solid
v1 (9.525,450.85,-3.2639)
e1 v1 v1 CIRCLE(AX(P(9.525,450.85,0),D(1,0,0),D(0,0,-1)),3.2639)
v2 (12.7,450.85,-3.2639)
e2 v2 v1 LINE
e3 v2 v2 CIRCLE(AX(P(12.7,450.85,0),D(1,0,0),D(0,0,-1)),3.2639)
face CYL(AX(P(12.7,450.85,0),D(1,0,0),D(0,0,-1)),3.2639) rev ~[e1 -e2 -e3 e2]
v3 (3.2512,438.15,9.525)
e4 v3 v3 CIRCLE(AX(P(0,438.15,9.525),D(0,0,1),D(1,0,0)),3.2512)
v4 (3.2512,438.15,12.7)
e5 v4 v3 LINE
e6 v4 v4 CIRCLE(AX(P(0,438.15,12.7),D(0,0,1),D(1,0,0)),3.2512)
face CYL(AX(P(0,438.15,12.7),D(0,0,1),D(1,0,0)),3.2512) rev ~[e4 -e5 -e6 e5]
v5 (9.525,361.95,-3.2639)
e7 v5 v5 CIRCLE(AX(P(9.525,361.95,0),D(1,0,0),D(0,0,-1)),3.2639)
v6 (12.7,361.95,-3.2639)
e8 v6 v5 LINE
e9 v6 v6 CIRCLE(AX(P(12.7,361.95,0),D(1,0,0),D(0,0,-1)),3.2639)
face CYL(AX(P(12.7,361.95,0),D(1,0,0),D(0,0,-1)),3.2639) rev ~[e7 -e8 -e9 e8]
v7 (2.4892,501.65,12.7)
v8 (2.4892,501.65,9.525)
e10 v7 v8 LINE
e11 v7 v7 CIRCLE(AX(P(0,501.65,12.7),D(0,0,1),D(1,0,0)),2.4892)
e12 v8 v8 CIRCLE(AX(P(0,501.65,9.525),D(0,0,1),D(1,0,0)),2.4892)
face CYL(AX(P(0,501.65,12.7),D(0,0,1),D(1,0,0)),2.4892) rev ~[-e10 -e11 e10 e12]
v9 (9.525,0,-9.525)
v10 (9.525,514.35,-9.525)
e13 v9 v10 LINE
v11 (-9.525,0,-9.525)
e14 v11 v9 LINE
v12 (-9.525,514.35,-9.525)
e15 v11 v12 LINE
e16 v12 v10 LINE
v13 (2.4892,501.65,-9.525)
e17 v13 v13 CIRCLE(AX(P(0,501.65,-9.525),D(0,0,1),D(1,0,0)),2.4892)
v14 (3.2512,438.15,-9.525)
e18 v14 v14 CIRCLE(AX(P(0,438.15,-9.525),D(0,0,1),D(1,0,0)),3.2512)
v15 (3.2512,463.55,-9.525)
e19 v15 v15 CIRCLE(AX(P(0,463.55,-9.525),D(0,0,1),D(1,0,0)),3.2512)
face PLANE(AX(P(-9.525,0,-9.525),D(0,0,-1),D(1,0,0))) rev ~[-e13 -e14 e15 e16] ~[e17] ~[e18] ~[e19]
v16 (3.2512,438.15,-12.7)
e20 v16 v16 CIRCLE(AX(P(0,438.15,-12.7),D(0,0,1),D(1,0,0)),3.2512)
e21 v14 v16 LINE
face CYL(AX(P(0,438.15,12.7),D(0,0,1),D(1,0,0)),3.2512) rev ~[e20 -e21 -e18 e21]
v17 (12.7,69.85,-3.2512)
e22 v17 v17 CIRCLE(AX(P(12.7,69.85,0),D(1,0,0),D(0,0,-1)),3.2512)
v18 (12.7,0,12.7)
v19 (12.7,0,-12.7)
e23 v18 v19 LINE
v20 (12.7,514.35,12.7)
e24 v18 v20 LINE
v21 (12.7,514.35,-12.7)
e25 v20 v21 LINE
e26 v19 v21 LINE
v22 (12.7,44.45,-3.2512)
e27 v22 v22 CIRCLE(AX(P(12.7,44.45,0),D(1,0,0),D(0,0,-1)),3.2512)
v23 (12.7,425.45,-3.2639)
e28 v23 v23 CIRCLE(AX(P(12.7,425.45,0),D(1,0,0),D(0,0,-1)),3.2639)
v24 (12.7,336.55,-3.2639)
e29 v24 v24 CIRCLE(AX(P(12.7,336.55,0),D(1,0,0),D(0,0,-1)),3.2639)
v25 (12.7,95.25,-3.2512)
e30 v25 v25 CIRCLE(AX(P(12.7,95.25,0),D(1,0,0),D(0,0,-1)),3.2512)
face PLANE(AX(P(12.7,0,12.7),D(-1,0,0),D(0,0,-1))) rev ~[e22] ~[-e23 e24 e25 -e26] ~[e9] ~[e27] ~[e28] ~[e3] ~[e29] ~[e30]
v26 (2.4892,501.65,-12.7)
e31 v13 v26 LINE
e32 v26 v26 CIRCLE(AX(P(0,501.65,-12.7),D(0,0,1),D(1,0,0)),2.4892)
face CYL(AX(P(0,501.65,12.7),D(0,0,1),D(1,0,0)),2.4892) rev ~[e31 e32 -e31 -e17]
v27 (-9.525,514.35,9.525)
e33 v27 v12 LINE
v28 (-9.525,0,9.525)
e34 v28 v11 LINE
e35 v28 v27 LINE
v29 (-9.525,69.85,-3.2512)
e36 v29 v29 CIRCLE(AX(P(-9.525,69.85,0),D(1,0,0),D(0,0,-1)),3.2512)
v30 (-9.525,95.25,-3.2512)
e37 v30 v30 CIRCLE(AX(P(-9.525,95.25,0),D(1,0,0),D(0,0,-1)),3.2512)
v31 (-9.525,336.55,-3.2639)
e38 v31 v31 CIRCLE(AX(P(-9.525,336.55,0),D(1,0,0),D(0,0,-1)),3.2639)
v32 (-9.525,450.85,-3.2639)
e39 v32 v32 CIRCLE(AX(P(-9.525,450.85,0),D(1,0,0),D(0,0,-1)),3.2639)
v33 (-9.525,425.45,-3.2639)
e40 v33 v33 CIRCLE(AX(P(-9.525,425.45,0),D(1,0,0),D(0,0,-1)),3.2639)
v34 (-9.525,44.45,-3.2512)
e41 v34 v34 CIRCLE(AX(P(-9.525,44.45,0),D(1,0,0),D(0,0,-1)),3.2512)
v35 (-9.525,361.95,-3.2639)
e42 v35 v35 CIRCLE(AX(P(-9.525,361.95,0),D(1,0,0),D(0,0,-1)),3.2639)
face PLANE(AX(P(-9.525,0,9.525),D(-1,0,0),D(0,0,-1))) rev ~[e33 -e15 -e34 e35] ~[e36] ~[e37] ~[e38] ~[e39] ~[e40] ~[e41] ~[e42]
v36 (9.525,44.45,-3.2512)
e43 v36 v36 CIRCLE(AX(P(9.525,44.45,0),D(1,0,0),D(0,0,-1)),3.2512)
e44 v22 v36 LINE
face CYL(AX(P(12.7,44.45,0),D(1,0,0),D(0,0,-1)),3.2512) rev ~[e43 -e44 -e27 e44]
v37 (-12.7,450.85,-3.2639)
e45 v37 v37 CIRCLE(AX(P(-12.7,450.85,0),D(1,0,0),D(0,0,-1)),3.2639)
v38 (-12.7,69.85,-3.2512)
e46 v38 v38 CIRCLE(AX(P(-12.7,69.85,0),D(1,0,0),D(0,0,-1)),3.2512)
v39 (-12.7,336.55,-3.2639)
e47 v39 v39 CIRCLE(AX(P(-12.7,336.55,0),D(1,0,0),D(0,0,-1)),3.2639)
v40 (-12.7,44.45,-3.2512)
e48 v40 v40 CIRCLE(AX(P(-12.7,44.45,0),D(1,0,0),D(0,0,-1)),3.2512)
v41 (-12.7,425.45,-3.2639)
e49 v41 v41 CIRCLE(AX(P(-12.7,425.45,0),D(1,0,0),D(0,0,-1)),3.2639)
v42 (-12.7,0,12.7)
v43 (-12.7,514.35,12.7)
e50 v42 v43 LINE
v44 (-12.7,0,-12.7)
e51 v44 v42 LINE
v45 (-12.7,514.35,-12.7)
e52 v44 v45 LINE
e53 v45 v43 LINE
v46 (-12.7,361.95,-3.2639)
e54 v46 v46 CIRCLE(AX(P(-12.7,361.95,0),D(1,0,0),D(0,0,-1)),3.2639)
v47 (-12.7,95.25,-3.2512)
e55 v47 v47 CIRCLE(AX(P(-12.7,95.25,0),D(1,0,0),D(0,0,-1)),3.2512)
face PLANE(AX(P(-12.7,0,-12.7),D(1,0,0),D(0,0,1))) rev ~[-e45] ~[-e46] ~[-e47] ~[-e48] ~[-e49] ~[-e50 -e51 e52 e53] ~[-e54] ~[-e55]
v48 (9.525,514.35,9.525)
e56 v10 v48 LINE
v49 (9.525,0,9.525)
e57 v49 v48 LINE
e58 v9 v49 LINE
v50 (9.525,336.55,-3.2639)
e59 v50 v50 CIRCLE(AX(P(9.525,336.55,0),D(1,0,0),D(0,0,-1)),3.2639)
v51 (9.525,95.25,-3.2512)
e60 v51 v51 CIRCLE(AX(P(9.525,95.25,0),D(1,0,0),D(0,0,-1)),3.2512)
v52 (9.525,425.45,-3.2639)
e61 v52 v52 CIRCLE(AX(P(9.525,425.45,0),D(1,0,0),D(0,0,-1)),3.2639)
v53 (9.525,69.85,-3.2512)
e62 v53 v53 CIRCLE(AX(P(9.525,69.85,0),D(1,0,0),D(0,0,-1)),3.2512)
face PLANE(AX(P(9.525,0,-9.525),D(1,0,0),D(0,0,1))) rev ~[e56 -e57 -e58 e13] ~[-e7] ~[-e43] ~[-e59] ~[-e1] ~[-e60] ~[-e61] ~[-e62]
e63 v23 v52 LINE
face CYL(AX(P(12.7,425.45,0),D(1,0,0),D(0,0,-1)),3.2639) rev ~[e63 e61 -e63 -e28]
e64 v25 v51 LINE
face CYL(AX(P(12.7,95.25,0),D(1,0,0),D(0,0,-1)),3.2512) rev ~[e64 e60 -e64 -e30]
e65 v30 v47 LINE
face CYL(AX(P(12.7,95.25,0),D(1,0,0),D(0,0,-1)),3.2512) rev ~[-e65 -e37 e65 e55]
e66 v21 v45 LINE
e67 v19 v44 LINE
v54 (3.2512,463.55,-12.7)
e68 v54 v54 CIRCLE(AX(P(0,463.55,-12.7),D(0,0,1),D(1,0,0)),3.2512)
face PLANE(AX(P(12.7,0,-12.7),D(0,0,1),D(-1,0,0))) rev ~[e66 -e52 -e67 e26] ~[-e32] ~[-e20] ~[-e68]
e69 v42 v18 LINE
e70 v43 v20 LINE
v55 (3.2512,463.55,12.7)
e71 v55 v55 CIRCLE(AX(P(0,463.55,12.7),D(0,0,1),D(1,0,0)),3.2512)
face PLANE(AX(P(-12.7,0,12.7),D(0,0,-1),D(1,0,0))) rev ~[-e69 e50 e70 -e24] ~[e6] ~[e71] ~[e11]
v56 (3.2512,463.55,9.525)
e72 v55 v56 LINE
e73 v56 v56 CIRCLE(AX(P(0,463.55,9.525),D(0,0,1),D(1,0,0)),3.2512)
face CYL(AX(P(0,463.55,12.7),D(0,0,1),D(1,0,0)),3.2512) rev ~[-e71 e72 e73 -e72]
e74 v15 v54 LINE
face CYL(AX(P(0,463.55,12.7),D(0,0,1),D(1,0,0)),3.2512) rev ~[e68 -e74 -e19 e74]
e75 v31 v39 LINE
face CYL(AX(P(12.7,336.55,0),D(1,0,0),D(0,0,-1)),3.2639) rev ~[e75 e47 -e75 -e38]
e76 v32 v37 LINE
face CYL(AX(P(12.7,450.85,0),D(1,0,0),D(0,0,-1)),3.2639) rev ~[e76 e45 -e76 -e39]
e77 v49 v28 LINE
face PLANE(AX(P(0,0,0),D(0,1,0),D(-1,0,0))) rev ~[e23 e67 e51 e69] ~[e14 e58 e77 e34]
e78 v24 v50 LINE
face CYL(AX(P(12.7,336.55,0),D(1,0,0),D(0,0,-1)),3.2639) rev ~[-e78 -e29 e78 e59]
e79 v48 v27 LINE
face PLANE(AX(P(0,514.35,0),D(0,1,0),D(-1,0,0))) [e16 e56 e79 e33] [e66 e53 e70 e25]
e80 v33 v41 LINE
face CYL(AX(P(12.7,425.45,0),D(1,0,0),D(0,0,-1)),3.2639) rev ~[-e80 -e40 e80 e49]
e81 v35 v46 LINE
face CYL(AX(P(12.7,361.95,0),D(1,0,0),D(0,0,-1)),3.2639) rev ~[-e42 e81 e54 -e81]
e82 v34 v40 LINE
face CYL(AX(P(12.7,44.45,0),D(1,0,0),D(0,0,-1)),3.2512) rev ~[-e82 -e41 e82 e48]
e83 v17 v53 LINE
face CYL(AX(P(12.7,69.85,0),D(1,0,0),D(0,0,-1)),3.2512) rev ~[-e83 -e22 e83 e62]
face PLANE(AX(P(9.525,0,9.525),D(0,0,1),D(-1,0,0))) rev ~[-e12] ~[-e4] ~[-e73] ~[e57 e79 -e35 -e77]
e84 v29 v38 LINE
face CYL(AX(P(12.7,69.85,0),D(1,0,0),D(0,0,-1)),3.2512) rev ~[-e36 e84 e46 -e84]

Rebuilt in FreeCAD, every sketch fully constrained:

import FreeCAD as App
import Part
import Sketcher
from FreeCAD import Vector
Q = App.Units.Quantity


def add_polygon(sketch, points):
    """Adds a closed chain of lines whose ends are joined by coincident constraints."""
    first, n = sketch.GeometryCount, len(points)
    for a, b in zip(points, points[1:] + points[:1]):
        sketch.addGeometry(Part.LineSegment(App.Vector(*a, 0), App.Vector(*b, 0)), False)
    for i in range(n):
        sketch.addConstraint(Sketcher.Constraint("Coincident", first + i, 2, first + (i + 1) % n, 1))

doc = App.newDocument("Part")
body = doc.addObject("PartDesign::Body", "Body")

# Sketch on XZ plane
sketch1 = doc.addObject("Sketcher::SketchObject", "Sketch")
body.addObject(sketch1)
sketch1.AttachmentSupport = (doc.XZ_Plane, [""])
sketch1.MapMode = "FlatFace"
add_polygon(sketch1, [(13, 13), (13, -13), (-13, -13), (-13, 13)])  # lines 0-3
add_polygon(sketch1, [(10, 10), (-10, 10), (-10, -10), (10, -10)])  # lines 4-7
sketch1.addConstraint([
    Sketcher.Constraint("Vertical", 0),
    Sketcher.Constraint("Horizontal", 1),
    Sketcher.Constraint("Vertical", 2),
    Sketcher.Constraint("Horizontal", 3),
    Sketcher.Constraint("Horizontal", 4),
    Sketcher.Constraint("Vertical", 5),
    Sketcher.Constraint("Horizontal", 6),
    Sketcher.Constraint("Vertical", 7),
    Sketcher.Constraint("Symmetric", 0, 2, 2, 2, -1, 1),
    Sketcher.Constraint("Symmetric", 4, 2, 6, 2, -1, 1),
    Sketcher.Constraint("Equal", 3, 0),
    Sketcher.Constraint("Equal", 6, 5),
    Sketcher.Constraint("DistanceX", 1, 2, 1, 1, Q("1 in")),
    Sketcher.Constraint("DistanceX", 2, 2, 4, 2, Q("0.125 in")),
])
pad1 = doc.addObject("PartDesign::Pad", "Pad")
body.addObject(pad1)
pad1.Profile = sketch1
pad1.Length = Q("20.25 in")
pad1.Reversed = True

# Sketch on XY plane
sketch2 = doc.addObject("Sketcher::SketchObject", "Sketch001")
body.addObject(sketch2)
sketch2.AttachmentSupport = (doc.XY_Plane, [""])
sketch2.MapMode = "FlatFace"
sketch2.AttachmentOffset = App.Placement(Vector(0, 0, 0.5 * 25.4), App.Rotation())
sketch2.addGeometry([
    Part.Circle(Vector(0, 501.6, 0), Vector(0, 0, 1), 2.5),
    Part.Circle(Vector(0, 463.6, 0), Vector(0, 0, 1), 3.3),
    Part.Circle(Vector(0, 438.1, 0), Vector(0, 0, 1), 3.3),
], False)
sketch2.addConstraint([
    Sketcher.Constraint("Equal", 1, 2),
    Sketcher.Constraint("PointOnObject", 0, 3, -2),
    Sketcher.Constraint("PointOnObject", 1, 3, -2),
    Sketcher.Constraint("PointOnObject", 2, 3, -2),
    Sketcher.Constraint("Diameter", 0, Q("0.196 in")),
    Sketcher.Constraint("Diameter", 1, Q("0.256 in")),
    Sketcher.Constraint("DistanceY", 2, 3, 1, 3, Q("1 in")),
    Sketcher.Constraint("DistanceY", 1, 3, 0, 3, Q("1.5 in")),
    Sketcher.Constraint("DistanceY", -1, 1, 0, 3, Q("19.75 in")),
])
pocket1 = doc.addObject("PartDesign::Pocket", "Pocket")
body.addObject(pocket1)
pocket1.Profile = sketch2
pocket1.Length = Q("1 in")

# Sketch on YZ plane
sketch3 = doc.addObject("Sketcher::SketchObject", "Sketch002")
body.addObject(sketch3)
sketch3.AttachmentSupport = (doc.YZ_Plane, [""])
sketch3.MapMode = "FlatFace"
sketch3.AttachmentOffset = App.Placement(Vector(0, 0, 0.5 * 25.4), App.Rotation())
sketch3.addGeometry([
    Part.Circle(Vector(44.5, 0, 0), Vector(0, 0, 1), 3.3),  # 0
    Part.Circle(Vector(69.8, 0, 0), Vector(0, 0, 1), 3.3),  # 1
    Part.Circle(Vector(95.2, 0, 0), Vector(0, 0, 1), 3.3),  # 2
    Part.Circle(Vector(336.6, 0, 0), Vector(0, 0, 1), 3.3),  # 3
    Part.Circle(Vector(361.9, 0, 0), Vector(0, 0, 1), 3.3),  # 4
    Part.Circle(Vector(425.4, 0, 0), Vector(0, 0, 1), 3.3),  # 5
    Part.Circle(Vector(450.9, 0, 0), Vector(0, 0, 1), 3.3),  # 6
], False)
sketch3.addConstraint([
    Sketcher.Constraint("Equal", 0, 1),
    Sketcher.Constraint("Equal", 1, 2),
    Sketcher.Constraint("Equal", 3, 4),
    Sketcher.Constraint("Equal", 4, 5),
    Sketcher.Constraint("Equal", 5, 6),
    Sketcher.Constraint("PointOnObject", 0, 3, -1),
    Sketcher.Constraint("PointOnObject", 1, 3, -1),
    Sketcher.Constraint("PointOnObject", 2, 3, -1),
    Sketcher.Constraint("PointOnObject", 3, 3, -1),
    Sketcher.Constraint("PointOnObject", 4, 3, -1),
    Sketcher.Constraint("PointOnObject", 5, 3, -1),
    Sketcher.Constraint("PointOnObject", 6, 3, -1),
    Sketcher.Constraint("Diameter", 0, Q("0.256 in")),
    Sketcher.Constraint("Diameter", 3, Q("0.257 in")),
    Sketcher.Constraint("DistanceX", 0, 3, 1, 3, Q("1 in")),
    Sketcher.Constraint("DistanceX", 1, 3, 2, 3, Q("1 in")),
    Sketcher.Constraint("DistanceX", 3, 3, 4, 3, Q("1 in")),
    Sketcher.Constraint("DistanceX", 5, 3, 6, 3, Q("1 in")),
    Sketcher.Constraint("DistanceX", 4, 3, 5, 3, Q("2.5 in")),
    Sketcher.Constraint("DistanceX", -1, 1, 3, 3, Q("13.25 in")),
    Sketcher.Constraint("DistanceX", 2, 3, 5, 3, Q("13 in")),
])
pocket2 = doc.addObject("PartDesign::Pocket", "Pocket001")
body.addObject(pocket2)
pocket2.Profile = sketch3
pocket2.Length = Q("1 in")

doc.recompute()
